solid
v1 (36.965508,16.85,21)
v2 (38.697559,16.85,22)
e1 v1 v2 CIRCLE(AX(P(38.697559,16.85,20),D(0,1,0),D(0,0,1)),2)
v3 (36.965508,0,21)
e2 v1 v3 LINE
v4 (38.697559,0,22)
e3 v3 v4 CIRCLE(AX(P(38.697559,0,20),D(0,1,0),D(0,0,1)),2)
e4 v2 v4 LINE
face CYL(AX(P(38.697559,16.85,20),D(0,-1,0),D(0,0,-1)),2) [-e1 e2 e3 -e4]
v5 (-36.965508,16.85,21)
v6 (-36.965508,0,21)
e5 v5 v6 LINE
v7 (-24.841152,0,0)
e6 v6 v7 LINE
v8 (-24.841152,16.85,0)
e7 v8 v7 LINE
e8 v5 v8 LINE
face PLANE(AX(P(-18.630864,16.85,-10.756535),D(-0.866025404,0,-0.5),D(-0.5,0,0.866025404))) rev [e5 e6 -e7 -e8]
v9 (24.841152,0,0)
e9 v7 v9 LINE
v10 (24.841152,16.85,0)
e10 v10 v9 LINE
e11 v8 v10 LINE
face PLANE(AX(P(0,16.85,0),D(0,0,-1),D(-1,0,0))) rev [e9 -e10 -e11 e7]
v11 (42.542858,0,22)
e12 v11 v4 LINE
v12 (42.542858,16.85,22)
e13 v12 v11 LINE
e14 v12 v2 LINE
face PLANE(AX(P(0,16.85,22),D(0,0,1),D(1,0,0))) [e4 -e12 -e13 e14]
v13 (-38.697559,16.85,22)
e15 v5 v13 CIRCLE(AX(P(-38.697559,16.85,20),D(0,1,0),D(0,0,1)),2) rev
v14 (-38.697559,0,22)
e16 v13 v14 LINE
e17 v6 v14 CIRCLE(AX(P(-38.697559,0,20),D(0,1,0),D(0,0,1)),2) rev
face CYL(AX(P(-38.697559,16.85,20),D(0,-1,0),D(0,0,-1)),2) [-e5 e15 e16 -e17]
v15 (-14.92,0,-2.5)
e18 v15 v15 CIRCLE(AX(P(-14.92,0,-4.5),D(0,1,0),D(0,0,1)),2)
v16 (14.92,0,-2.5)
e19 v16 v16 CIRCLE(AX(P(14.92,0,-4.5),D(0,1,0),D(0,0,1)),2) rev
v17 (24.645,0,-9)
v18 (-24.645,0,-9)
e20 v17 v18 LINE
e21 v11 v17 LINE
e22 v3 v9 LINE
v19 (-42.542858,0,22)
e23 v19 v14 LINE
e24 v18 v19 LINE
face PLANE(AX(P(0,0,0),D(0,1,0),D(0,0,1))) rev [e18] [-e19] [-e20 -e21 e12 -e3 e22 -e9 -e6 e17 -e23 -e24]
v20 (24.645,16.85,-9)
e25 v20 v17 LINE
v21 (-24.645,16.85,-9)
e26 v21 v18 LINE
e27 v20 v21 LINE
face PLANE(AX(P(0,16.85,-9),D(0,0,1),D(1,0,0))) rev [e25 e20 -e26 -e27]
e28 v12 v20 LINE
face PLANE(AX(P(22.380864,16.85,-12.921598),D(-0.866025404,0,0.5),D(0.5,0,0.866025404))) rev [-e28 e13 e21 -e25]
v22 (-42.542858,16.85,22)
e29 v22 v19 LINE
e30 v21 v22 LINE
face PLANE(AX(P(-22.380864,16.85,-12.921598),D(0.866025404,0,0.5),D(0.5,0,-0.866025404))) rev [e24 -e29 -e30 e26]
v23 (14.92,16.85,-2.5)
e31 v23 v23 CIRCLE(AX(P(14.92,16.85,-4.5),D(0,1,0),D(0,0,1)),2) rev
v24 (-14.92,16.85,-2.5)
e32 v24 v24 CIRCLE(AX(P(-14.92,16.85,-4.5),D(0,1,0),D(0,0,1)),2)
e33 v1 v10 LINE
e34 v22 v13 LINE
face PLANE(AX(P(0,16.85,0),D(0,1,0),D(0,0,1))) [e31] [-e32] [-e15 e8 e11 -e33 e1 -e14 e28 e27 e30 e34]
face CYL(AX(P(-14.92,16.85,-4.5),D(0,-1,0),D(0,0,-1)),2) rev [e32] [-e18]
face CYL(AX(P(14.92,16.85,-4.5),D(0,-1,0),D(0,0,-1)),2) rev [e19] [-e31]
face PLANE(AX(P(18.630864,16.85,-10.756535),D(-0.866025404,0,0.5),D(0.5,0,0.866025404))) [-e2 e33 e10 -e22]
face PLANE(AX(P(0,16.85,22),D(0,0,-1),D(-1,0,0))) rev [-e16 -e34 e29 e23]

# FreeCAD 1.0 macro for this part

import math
import FreeCAD as App
import Part
import Sketcher
Q = App.Units.Quantity

doc = App.newDocument("Part")
params = doc.addObject("Spreadsheet::Sheet", "Params")
for row, (alias, value) in enumerate([
    ("sketch1_diameter", "4 mm"),
    ("sketch1_width", "49.29 mm"),
    ("pad1_length", "16.85 mm"),
], start=1):
    params.set(f"A{row}", alias)
    params.set(f"B{row}", "=" + value)
    params.setAlias(f"B{row}", alias)

body = doc.addObject("PartDesign::Body", "Body")

sketch1 = body.newObject("Sketcher::SketchObject", "Sketch")
sketch1.AttachmentSupport = (doc.getObject("XZ_Plane"), [""])
sketch1.MapMode = "FlatFace"
sketch1.addGeometry([
    Part.LineSegment(App.Vector(-24.6, -9, 0), App.Vector(-29.8, 0, 0)),
    Part.LineSegment(App.Vector(-29.8, 0, 0), App.Vector(-42.5, 22, 0)),
    Part.LineSegment(App.Vector(-42.5, 22, 0), App.Vector(-38.7, 22, 0)),
    Part.ArcOfCircle(Part.Circle(App.Vector(-38.7, 20, 0), App.Vector(0, 0, 1), 2), math.radians(30), math.radians(90)),
    Part.LineSegment(App.Vector(-37, 21, 0), App.Vector(-24.8, 0, 0)),
    Part.LineSegment(App.Vector(-24.8, 0, 0), App.Vector(24.8, 0, 0)),
    Part.LineSegment(App.Vector(24.8, 0, 0), App.Vector(37, 21, 0)),
    Part.ArcOfCircle(Part.Circle(App.Vector(38.7, 20, 0), App.Vector(0, 0, 1), 2), math.radians(90), math.radians(150)),
    Part.LineSegment(App.Vector(38.7, 22, 0), App.Vector(42.5, 22, 0)),
    Part.LineSegment(App.Vector(42.5, 22, 0), App.Vector(29.8, 0, 0)),
    Part.LineSegment(App.Vector(29.8, 0, 0), App.Vector(24.6, -9, 0)),
    Part.LineSegment(App.Vector(24.6, -9, 0), App.Vector(-24.6, -9, 0)),
    Part.Circle(App.Vector(-14.9, -4.5, 0), App.Vector(0, 0, 1), 2),
    Part.Circle(App.Vector(14.9, -4.5, 0), App.Vector(0, 0, 1), 2),
], False)
sketch1.addConstraint([
    Sketcher.Constraint("Coincident", 0, 2, 1, 1),
    Sketcher.Constraint("Coincident", 1, 2, 2, 1),
    Sketcher.Constraint("Tangent", 2, 2, 3, 2),
    Sketcher.Constraint("Tangent", 3, 1, 4, 1),
    Sketcher.Constraint("Coincident", 4, 2, 5, 1),
    Sketcher.Constraint("Coincident", 5, 2, 6, 1),
    Sketcher.Constraint("Tangent", 6, 2, 7, 2),
    Sketcher.Constraint("Tangent", 7, 1, 8, 1),
    Sketcher.Constraint("Coincident", 8, 2, 9, 1),
    Sketcher.Constraint("Coincident", 9, 2, 10, 1),
    Sketcher.Constraint("Coincident", 10, 2, 11, 1),
    Sketcher.Constraint("Coincident", 11, 2, 0, 1),
    Sketcher.Constraint("Horizontal", 2),
    Sketcher.Constraint("Horizontal", 5),
    Sketcher.Constraint("Horizontal", 8),
    Sketcher.Constraint("Horizontal", 11),
    Sketcher.Constraint("Equal", 3, 7),
    Sketcher.Constraint("Equal", 7, 12),
    Sketcher.Constraint("Equal", 12, 13),
    Sketcher.Constraint("Symmetric", 4, 2, 5, 2, -1, 1),
    Sketcher.Constraint("Symmetric", 0, 2, 9, 2, -1, 1),
    Sketcher.Constraint("Symmetric", 3, 3, 7, 3, -2),
    Sketcher.Constraint("Symmetric", 12, 3, 13, 3, -2),
    Sketcher.Constraint("PointOnObject", 0, 2, -1),
    Sketcher.Constraint("Parallel", 0, 1),
    Sketcher.Constraint("Parallel", 1, 4),
    Sketcher.Constraint("Parallel", 6, 9),
    Sketcher.Constraint("Parallel", 9, 10),
    Sketcher.Constraint("Diameter", 12, 4.0),
    Sketcher.Constraint("Angle", 0, Q("120 deg")),
    Sketcher.Constraint("DistanceY", -1, 1, 3, 3, 20.0),
    Sketcher.Constraint("DistanceY", 10, 2, -1, 1, 9.0),
    Sketcher.Constraint("DistanceX", 0, 2, 4, 2, 5.0),
    Sketcher.Constraint("DistanceX", 11, 2, 11, 1, 49.29),
    Sketcher.Constraint("DistanceY", 12, 3, -1, 1, 4.5),
    Sketcher.Constraint("DistanceX", 12, 3, -1, 1, 14.92),
])
sketch1.setExpression("Constraints[28]", "Params.sketch1_diameter")
sketch1.setExpression("Constraints[33]", "Params.sketch1_width")
pad1 = body.newObject("PartDesign::Pad", "Pad")
pad1.Profile = sketch1
pad1.setExpression("Length", "Params.pad1_length")
pad1.Reversed = True

doc.recompute()
